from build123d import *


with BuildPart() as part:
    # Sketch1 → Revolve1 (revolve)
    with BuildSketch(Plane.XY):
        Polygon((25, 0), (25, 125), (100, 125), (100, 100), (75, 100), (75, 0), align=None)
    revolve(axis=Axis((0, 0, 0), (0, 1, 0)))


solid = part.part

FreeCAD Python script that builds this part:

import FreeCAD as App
import Part
import Sketcher
Q = App.Units.Quantity


def add_polygon(sketch, points):
    """Adds a closed chain of lines whose ends are joined by coincident constraints."""
    first, n = sketch.GeometryCount, len(points)
    for a, b in zip(points, points[1:] + points[:1]):
        sketch.addGeometry(Part.LineSegment(App.Vector(*a, 0), App.Vector(*b, 0)), False)
    for i in range(n):
        sketch.addConstraint(Sketcher.Constraint("Coincident", first + i, 2, first + (i + 1) % n, 1))

doc = App.newDocument("Part")
body = doc.addObject("PartDesign::Body", "Body")

# Sketch on XY plane
sketch1 = doc.addObject("Sketcher::SketchObject", "Sketch")
body.addObject(sketch1)
sketch1.AttachmentSupport = (doc.XY_Plane, [""])
sketch1.MapMode = "FlatFace"
add_polygon(sketch1, [(25, 125), (25, 0), (75, 0), (75, 100), (100, 100), (100, 125)])  # lines 0-5
sketch1.addConstraint([
    Sketcher.Constraint("Vertical", 0),
    Sketcher.Constraint("Horizontal", 1),
    Sketcher.Constraint("Vertical", 2),
    Sketcher.Constraint("Horizontal", 3),
    Sketcher.Constraint("Vertical", 4),
    Sketcher.Constraint("Horizontal", 5),
    Sketcher.Constraint("PointOnObject", 0, 2, -1),
    Sketcher.Constraint("Equal", 3, 4),
    Sketcher.Constraint("DistanceX", 1, 1, 1, 2, Q("50 mm")),
    Sketcher.Constraint("DistanceX", 3, 1, 3, 2, Q("25 mm")),
    Sketcher.Constraint("DistanceY", 0, 2, 0, 1, Q("125 mm")),
    Sketcher.Constraint("DistanceX", -1, 1, 0, 2, Q("25 mm")),
])
revolution = doc.addObject("PartDesign::Revolution", "Revolution")
body.addObject(revolution)
revolution.Profile = sketch1
revolution.ReferenceAxis = (sketch1, ["V_Axis"])
revolution.Angle = 360

doc.recompute()
